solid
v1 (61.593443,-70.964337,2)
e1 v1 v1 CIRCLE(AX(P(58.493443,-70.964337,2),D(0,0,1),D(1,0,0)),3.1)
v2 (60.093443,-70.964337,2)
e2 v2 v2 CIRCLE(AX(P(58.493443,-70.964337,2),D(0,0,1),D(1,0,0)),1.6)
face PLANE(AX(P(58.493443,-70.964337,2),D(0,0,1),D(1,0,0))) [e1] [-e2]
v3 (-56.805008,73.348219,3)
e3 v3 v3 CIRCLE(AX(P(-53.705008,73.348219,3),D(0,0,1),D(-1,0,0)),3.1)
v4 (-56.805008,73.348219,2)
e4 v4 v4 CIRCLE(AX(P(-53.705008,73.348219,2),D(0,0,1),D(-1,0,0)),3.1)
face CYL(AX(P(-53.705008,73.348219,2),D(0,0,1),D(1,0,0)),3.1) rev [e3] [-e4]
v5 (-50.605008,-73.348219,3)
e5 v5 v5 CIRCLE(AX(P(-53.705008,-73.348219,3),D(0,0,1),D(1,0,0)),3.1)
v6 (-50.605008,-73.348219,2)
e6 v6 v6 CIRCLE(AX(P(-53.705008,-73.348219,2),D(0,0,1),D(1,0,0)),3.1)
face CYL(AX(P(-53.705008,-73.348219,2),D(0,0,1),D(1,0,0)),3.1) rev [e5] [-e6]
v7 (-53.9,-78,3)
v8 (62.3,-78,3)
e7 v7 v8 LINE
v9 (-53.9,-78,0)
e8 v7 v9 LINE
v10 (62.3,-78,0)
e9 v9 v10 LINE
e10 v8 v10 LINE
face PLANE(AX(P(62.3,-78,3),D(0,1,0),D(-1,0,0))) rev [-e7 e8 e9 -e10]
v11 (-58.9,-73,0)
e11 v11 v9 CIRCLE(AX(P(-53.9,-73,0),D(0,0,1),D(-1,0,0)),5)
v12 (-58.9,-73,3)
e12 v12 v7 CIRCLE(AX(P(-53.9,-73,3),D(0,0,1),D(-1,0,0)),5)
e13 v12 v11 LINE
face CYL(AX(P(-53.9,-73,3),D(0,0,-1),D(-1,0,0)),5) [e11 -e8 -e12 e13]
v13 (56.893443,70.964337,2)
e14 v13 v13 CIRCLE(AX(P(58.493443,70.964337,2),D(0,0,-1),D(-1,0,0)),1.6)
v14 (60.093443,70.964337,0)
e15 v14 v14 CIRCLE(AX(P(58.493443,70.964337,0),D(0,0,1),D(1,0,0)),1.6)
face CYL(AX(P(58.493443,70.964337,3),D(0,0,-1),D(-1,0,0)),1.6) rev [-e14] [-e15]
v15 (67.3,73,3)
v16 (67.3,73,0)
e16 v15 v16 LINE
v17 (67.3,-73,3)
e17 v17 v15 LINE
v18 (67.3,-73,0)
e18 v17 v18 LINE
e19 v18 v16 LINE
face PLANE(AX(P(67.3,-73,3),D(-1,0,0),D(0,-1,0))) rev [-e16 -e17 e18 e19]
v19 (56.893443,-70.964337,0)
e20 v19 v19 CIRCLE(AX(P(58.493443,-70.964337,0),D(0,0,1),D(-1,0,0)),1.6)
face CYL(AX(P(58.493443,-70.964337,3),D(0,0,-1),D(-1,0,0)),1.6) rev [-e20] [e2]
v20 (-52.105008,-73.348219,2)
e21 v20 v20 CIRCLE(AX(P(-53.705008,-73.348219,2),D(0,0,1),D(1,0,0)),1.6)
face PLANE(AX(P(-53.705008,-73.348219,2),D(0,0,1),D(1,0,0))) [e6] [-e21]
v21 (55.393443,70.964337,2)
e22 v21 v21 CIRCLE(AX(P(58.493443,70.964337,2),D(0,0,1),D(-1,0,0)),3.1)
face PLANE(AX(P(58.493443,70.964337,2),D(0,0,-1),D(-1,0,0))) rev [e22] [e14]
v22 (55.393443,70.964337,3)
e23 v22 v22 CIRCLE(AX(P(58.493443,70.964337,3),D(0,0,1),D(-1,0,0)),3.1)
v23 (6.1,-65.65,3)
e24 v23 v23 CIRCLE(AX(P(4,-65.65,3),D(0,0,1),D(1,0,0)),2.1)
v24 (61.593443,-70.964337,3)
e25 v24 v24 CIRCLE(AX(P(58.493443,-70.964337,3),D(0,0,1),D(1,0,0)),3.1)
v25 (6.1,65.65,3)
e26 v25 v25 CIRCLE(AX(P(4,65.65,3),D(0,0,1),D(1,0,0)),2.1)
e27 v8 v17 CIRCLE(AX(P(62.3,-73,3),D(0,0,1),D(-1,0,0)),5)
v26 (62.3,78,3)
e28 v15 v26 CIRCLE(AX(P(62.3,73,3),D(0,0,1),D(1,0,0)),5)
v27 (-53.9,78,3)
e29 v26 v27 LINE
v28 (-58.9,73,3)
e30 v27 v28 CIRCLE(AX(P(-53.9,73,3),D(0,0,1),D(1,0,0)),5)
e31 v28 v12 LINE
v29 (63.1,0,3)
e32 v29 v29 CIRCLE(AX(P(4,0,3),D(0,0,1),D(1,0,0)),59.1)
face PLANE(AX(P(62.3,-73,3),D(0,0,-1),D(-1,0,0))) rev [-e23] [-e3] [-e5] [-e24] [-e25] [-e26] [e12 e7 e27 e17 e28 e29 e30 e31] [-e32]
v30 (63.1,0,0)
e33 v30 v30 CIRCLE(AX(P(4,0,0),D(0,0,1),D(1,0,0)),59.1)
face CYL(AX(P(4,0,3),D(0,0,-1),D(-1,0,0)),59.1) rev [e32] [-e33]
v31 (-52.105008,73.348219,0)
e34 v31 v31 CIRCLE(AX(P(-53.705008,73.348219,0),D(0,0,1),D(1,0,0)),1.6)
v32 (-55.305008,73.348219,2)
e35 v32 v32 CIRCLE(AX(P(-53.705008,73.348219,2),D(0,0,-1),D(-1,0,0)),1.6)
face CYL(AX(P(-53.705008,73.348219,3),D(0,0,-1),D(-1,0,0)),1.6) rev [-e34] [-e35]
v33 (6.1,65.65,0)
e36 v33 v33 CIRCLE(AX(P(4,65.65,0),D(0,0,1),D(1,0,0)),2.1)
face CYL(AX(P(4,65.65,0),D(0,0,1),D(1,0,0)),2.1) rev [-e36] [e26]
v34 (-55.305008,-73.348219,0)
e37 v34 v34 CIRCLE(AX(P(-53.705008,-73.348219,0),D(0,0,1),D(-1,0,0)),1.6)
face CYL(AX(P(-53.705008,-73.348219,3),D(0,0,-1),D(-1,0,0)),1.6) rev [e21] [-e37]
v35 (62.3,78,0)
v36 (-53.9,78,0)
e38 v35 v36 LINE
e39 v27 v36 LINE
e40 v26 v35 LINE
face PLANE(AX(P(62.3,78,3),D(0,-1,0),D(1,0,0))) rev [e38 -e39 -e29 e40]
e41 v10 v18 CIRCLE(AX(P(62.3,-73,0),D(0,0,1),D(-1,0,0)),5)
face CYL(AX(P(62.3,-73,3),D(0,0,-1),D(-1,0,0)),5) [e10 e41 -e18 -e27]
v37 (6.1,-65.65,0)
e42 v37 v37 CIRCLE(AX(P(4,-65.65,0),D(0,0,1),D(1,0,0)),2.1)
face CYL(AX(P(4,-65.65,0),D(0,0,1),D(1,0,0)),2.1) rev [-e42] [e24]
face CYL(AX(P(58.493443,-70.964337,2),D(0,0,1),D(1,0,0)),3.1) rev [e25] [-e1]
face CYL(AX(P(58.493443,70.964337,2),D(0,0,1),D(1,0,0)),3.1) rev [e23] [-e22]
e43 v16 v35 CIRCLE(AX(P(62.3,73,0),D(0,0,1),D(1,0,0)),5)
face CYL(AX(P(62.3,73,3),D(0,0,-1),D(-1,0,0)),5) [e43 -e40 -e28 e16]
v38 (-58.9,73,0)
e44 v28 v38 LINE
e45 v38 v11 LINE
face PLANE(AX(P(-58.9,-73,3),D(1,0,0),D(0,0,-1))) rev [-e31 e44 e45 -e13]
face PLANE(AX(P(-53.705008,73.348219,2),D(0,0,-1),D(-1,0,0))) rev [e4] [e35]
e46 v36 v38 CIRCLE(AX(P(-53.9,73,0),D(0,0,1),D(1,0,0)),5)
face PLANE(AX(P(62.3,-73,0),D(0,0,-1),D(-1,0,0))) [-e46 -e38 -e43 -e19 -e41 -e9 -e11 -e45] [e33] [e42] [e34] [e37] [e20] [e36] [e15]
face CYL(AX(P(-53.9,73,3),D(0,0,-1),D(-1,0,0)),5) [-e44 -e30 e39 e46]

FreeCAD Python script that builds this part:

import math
import FreeCAD as App
import Part
import Sketcher

doc = App.newDocument("Part")
params = doc.addObject("Spreadsheet::Sheet", "Params")
for row, (alias, value) in enumerate([
    ("sketch1_radius", "5 mm"),
    ("sketch1_diameter", "3.2 mm"),
    ("sketch1_diameter2", "118.2 mm"),
    ("sketch1_height", "146 mm"),
    ("sketch1_width", "116.2 mm"),
    ("pad1_length", "3 mm"),
    ("sketch2_diameter", "4.2 mm"),
    ("sketch3_diameter", "6.2 mm"),
    ("pocket2_length", "1 mm"),
], start=1):
    params.set(f"A{row}", alias)
    params.set(f"B{row}", "=" + value)
    params.setAlias(f"B{row}", alias)

body = doc.addObject("PartDesign::Body", "Body")

# Sketch on XY plane
sketch1 = body.newObject("Sketcher::SketchObject", "Sketch")
sketch1.AttachmentSupport = (doc.getObject("XY_Plane"), [""])
sketch1.MapMode = "FlatFace"
sketch1.addGeometry([
    Part.LineSegment(App.Vector(-53.9, -78, 0), App.Vector(62.3, -78, 0)),  # 0
    Part.ArcOfCircle(Part.Circle(App.Vector(62.3, -73, 0), App.Vector(0, 0, 1), 5), math.radians(-90), math.radians(0)),  # 1
    Part.LineSegment(App.Vector(67.3, -73, 0), App.Vector(67.3, 73, 0)),  # 2
    Part.ArcOfCircle(Part.Circle(App.Vector(62.3, 73, 0), App.Vector(0, 0, 1), 5), math.radians(0), math.radians(90)),  # 3
    Part.LineSegment(App.Vector(62.3, 78, 0), App.Vector(-53.9, 78, 0)),  # 4
    Part.ArcOfCircle(Part.Circle(App.Vector(-53.9, 73, 0), App.Vector(0, 0, 1), 5), math.radians(90), math.radians(180)),  # 5
    Part.LineSegment(App.Vector(-58.9, 73, 0), App.Vector(-58.9, -73, 0)),  # 6
    Part.ArcOfCircle(Part.Circle(App.Vector(-53.9, -73, 0), App.Vector(0, 0, 1), 5), math.radians(180), math.radians(270)),  # 7
    Part.Circle(App.Vector(58.5, -71, 0), App.Vector(0, 0, 1), 1.6),  # 8
    Part.Circle(App.Vector(-53.7, -73.3, 0), App.Vector(0, 0, 1), 1.6),  # 9
    Part.Circle(App.Vector(4, 0, 0), App.Vector(0, 0, 1), 59.1),  # 10
    Part.Circle(App.Vector(58.5, 71, 0), App.Vector(0, 0, 1), 1.6),  # 11
    Part.Circle(App.Vector(-53.7, 73.3, 0), App.Vector(0, 0, 1), 1.6),  # 12
], False)
sketch1.addConstraint([
    Sketcher.Constraint("Tangent", 0, 2, 1, 1),
    Sketcher.Constraint("Tangent", 1, 2, 2, 1),
    Sketcher.Constraint("Tangent", 2, 2, 3, 1),
    Sketcher.Constraint("Tangent", 3, 2, 4, 1),
    Sketcher.Constraint("Tangent", 4, 2, 5, 1),
    Sketcher.Constraint("Tangent", 5, 2, 6, 1),
    Sketcher.Constraint("Tangent", 6, 2, 7, 1),
    Sketcher.Constraint("Tangent", 7, 2, 0, 1),
    Sketcher.Constraint("Horizontal", 0),
    Sketcher.Constraint("Vertical", 2),
    Sketcher.Constraint("Horizontal", 4),
    Sketcher.Constraint("Vertical", 6),
    Sketcher.Constraint("Equal", 1, 3),
    Sketcher.Constraint("Equal", 3, 5),
    Sketcher.Constraint("Equal", 5, 7),
    Sketcher.Constraint("Equal", 8, 9),
    Sketcher.Constraint("Equal", 9, 11),
    Sketcher.Constraint("Equal", 11, 12),
    Sketcher.Constraint("Symmetric", 8, 3, 11, 3, -1),
    Sketcher.Constraint("Symmetric", 9, 3, 12, 3, -1),
    Sketcher.Constraint("PointOnObject", 10, 3, -1),
    Sketcher.Constraint("Radius", 1, 5.0),
    Sketcher.Constraint("Diameter", 8, 3.2),
    Sketcher.Constraint("Diameter", 10, 118.2),
    Sketcher.Constraint("DistanceY", 2, 1, 2, 2, 146.0),
    Sketcher.Constraint("DistanceX", 0, 1, 0, 2, 116.2),
    Sketcher.Constraint("DistanceY", 1, 3, -1, 1, 73.0),
    Sketcher.Constraint("DistanceX", -1, 1, 10, 3, 4.0),
    Sketcher.Constraint("DistanceX", -1, 1, 1, 3, 62.3),
    Sketcher.Constraint("DistanceX", 9, 3, -1, 1, 53.705008),
    Sketcher.Constraint("DistanceY", 9, 3, -1, 1, 73.348219),
    Sketcher.Constraint("DistanceX", 9, 3, 8, 3, 112.198451),
    Sketcher.Constraint("DistanceY", 8, 3, -1, 1, 70.964337),
])
sketch1.setExpression("Constraints[21]", "Params.sketch1_radius")
sketch1.setExpression("Constraints[22]", "Params.sketch1_diameter")
sketch1.setExpression("Constraints[23]", "Params.sketch1_diameter2")
sketch1.setExpression("Constraints[24]", "Params.sketch1_height")
sketch1.setExpression("Constraints[25]", "Params.sketch1_width")
pad1 = body.newObject("PartDesign::Pad", "Pad")
pad1.Profile = sketch1
pad1.setExpression("Length", "Params.pad1_length")

# Sketch on XY plane
sketch2 = body.newObject("Sketcher::SketchObject", "Sketch001")
sketch2.AttachmentSupport = (doc.getObject("XY_Plane"), [""])
sketch2.MapMode = "FlatFace"
sketch2.AttachmentOffset = App.Placement(App.Vector(0, 0, 3), App.Rotation())
sketch2.addGeometry([
    Part.Circle(App.Vector(4, -65.7, 0), App.Vector(0, 0, 1), 2.1),
    Part.Circle(App.Vector(4, 65.7, 0), App.Vector(0, 0, 1), 2.1),
], False)
sketch2.addConstraint([
    Sketcher.Constraint("Equal", 0, 1),
    Sketcher.Constraint("Symmetric", 0, 3, 1, 3, -1),
    Sketcher.Constraint("Diameter", 0, 4.2),
    Sketcher.Constraint("DistanceX", -1, 1, 0, 3, 4.0),
    Sketcher.Constraint("DistanceY", 0, 3, 1, 3, 131.3),
])
sketch2.setExpression("Constraints[2]", "Params.sketch2_diameter")
pocket1 = body.newObject("PartDesign::Pocket", "Pocket")
pocket1.Profile = sketch2
pocket1.Type = "ThroughAll"

# Sketch on XY plane
sketch3 = body.newObject("Sketcher::SketchObject", "Sketch002")
sketch3.AttachmentSupport = (doc.getObject("XY_Plane"), [""])
sketch3.MapMode = "FlatFace"
sketch3.AttachmentOffset = App.Placement(App.Vector(0, 0, 3), App.Rotation())
sketch3.addGeometry([
    Part.Circle(App.Vector(58.5, -71, 0), App.Vector(0, 0, 1), 3.1),
    Part.Circle(App.Vector(-53.7, -73.3, 0), App.Vector(0, 0, 1), 3.1),
    Part.Circle(App.Vector(-53.7, 73.3, 0), App.Vector(0, 0, 1), 3.1),
    Part.Circle(App.Vector(58.5, 71, 0), App.Vector(0, 0, 1), 3.1),
], False)
sketch3.addConstraint([
    Sketcher.Constraint("Equal", 0, 1),
    Sketcher.Constraint("Equal", 1, 2),
    Sketcher.Constraint("Equal", 2, 3),
    Sketcher.Constraint("Symmetric", 1, 3, 2, 3, -1),
    Sketcher.Constraint("Symmetric", 0, 3, 3, 3, -1),
    Sketcher.Constraint("Diameter", 0, 6.2),
    Sketcher.Constraint("DistanceX", 1, 3, -1, 1, 53.705008),
    Sketcher.Constraint("DistanceY", 1, 3, -1, 1, 73.348219),
    Sketcher.Constraint("DistanceX", 1, 3, 0, 3, 112.198451),
    Sketcher.Constraint("DistanceY", 0, 3, -1, 1, 70.964337),
])
sketch3.setExpression("Constraints[5]", "Params.sketch3_diameter")
pocket2 = body.newObject("PartDesign::Pocket", "Pocket001")
pocket2.Profile = sketch3
pocket2.setExpression("Length", "Params.pocket2_length")

doc.recompute()
